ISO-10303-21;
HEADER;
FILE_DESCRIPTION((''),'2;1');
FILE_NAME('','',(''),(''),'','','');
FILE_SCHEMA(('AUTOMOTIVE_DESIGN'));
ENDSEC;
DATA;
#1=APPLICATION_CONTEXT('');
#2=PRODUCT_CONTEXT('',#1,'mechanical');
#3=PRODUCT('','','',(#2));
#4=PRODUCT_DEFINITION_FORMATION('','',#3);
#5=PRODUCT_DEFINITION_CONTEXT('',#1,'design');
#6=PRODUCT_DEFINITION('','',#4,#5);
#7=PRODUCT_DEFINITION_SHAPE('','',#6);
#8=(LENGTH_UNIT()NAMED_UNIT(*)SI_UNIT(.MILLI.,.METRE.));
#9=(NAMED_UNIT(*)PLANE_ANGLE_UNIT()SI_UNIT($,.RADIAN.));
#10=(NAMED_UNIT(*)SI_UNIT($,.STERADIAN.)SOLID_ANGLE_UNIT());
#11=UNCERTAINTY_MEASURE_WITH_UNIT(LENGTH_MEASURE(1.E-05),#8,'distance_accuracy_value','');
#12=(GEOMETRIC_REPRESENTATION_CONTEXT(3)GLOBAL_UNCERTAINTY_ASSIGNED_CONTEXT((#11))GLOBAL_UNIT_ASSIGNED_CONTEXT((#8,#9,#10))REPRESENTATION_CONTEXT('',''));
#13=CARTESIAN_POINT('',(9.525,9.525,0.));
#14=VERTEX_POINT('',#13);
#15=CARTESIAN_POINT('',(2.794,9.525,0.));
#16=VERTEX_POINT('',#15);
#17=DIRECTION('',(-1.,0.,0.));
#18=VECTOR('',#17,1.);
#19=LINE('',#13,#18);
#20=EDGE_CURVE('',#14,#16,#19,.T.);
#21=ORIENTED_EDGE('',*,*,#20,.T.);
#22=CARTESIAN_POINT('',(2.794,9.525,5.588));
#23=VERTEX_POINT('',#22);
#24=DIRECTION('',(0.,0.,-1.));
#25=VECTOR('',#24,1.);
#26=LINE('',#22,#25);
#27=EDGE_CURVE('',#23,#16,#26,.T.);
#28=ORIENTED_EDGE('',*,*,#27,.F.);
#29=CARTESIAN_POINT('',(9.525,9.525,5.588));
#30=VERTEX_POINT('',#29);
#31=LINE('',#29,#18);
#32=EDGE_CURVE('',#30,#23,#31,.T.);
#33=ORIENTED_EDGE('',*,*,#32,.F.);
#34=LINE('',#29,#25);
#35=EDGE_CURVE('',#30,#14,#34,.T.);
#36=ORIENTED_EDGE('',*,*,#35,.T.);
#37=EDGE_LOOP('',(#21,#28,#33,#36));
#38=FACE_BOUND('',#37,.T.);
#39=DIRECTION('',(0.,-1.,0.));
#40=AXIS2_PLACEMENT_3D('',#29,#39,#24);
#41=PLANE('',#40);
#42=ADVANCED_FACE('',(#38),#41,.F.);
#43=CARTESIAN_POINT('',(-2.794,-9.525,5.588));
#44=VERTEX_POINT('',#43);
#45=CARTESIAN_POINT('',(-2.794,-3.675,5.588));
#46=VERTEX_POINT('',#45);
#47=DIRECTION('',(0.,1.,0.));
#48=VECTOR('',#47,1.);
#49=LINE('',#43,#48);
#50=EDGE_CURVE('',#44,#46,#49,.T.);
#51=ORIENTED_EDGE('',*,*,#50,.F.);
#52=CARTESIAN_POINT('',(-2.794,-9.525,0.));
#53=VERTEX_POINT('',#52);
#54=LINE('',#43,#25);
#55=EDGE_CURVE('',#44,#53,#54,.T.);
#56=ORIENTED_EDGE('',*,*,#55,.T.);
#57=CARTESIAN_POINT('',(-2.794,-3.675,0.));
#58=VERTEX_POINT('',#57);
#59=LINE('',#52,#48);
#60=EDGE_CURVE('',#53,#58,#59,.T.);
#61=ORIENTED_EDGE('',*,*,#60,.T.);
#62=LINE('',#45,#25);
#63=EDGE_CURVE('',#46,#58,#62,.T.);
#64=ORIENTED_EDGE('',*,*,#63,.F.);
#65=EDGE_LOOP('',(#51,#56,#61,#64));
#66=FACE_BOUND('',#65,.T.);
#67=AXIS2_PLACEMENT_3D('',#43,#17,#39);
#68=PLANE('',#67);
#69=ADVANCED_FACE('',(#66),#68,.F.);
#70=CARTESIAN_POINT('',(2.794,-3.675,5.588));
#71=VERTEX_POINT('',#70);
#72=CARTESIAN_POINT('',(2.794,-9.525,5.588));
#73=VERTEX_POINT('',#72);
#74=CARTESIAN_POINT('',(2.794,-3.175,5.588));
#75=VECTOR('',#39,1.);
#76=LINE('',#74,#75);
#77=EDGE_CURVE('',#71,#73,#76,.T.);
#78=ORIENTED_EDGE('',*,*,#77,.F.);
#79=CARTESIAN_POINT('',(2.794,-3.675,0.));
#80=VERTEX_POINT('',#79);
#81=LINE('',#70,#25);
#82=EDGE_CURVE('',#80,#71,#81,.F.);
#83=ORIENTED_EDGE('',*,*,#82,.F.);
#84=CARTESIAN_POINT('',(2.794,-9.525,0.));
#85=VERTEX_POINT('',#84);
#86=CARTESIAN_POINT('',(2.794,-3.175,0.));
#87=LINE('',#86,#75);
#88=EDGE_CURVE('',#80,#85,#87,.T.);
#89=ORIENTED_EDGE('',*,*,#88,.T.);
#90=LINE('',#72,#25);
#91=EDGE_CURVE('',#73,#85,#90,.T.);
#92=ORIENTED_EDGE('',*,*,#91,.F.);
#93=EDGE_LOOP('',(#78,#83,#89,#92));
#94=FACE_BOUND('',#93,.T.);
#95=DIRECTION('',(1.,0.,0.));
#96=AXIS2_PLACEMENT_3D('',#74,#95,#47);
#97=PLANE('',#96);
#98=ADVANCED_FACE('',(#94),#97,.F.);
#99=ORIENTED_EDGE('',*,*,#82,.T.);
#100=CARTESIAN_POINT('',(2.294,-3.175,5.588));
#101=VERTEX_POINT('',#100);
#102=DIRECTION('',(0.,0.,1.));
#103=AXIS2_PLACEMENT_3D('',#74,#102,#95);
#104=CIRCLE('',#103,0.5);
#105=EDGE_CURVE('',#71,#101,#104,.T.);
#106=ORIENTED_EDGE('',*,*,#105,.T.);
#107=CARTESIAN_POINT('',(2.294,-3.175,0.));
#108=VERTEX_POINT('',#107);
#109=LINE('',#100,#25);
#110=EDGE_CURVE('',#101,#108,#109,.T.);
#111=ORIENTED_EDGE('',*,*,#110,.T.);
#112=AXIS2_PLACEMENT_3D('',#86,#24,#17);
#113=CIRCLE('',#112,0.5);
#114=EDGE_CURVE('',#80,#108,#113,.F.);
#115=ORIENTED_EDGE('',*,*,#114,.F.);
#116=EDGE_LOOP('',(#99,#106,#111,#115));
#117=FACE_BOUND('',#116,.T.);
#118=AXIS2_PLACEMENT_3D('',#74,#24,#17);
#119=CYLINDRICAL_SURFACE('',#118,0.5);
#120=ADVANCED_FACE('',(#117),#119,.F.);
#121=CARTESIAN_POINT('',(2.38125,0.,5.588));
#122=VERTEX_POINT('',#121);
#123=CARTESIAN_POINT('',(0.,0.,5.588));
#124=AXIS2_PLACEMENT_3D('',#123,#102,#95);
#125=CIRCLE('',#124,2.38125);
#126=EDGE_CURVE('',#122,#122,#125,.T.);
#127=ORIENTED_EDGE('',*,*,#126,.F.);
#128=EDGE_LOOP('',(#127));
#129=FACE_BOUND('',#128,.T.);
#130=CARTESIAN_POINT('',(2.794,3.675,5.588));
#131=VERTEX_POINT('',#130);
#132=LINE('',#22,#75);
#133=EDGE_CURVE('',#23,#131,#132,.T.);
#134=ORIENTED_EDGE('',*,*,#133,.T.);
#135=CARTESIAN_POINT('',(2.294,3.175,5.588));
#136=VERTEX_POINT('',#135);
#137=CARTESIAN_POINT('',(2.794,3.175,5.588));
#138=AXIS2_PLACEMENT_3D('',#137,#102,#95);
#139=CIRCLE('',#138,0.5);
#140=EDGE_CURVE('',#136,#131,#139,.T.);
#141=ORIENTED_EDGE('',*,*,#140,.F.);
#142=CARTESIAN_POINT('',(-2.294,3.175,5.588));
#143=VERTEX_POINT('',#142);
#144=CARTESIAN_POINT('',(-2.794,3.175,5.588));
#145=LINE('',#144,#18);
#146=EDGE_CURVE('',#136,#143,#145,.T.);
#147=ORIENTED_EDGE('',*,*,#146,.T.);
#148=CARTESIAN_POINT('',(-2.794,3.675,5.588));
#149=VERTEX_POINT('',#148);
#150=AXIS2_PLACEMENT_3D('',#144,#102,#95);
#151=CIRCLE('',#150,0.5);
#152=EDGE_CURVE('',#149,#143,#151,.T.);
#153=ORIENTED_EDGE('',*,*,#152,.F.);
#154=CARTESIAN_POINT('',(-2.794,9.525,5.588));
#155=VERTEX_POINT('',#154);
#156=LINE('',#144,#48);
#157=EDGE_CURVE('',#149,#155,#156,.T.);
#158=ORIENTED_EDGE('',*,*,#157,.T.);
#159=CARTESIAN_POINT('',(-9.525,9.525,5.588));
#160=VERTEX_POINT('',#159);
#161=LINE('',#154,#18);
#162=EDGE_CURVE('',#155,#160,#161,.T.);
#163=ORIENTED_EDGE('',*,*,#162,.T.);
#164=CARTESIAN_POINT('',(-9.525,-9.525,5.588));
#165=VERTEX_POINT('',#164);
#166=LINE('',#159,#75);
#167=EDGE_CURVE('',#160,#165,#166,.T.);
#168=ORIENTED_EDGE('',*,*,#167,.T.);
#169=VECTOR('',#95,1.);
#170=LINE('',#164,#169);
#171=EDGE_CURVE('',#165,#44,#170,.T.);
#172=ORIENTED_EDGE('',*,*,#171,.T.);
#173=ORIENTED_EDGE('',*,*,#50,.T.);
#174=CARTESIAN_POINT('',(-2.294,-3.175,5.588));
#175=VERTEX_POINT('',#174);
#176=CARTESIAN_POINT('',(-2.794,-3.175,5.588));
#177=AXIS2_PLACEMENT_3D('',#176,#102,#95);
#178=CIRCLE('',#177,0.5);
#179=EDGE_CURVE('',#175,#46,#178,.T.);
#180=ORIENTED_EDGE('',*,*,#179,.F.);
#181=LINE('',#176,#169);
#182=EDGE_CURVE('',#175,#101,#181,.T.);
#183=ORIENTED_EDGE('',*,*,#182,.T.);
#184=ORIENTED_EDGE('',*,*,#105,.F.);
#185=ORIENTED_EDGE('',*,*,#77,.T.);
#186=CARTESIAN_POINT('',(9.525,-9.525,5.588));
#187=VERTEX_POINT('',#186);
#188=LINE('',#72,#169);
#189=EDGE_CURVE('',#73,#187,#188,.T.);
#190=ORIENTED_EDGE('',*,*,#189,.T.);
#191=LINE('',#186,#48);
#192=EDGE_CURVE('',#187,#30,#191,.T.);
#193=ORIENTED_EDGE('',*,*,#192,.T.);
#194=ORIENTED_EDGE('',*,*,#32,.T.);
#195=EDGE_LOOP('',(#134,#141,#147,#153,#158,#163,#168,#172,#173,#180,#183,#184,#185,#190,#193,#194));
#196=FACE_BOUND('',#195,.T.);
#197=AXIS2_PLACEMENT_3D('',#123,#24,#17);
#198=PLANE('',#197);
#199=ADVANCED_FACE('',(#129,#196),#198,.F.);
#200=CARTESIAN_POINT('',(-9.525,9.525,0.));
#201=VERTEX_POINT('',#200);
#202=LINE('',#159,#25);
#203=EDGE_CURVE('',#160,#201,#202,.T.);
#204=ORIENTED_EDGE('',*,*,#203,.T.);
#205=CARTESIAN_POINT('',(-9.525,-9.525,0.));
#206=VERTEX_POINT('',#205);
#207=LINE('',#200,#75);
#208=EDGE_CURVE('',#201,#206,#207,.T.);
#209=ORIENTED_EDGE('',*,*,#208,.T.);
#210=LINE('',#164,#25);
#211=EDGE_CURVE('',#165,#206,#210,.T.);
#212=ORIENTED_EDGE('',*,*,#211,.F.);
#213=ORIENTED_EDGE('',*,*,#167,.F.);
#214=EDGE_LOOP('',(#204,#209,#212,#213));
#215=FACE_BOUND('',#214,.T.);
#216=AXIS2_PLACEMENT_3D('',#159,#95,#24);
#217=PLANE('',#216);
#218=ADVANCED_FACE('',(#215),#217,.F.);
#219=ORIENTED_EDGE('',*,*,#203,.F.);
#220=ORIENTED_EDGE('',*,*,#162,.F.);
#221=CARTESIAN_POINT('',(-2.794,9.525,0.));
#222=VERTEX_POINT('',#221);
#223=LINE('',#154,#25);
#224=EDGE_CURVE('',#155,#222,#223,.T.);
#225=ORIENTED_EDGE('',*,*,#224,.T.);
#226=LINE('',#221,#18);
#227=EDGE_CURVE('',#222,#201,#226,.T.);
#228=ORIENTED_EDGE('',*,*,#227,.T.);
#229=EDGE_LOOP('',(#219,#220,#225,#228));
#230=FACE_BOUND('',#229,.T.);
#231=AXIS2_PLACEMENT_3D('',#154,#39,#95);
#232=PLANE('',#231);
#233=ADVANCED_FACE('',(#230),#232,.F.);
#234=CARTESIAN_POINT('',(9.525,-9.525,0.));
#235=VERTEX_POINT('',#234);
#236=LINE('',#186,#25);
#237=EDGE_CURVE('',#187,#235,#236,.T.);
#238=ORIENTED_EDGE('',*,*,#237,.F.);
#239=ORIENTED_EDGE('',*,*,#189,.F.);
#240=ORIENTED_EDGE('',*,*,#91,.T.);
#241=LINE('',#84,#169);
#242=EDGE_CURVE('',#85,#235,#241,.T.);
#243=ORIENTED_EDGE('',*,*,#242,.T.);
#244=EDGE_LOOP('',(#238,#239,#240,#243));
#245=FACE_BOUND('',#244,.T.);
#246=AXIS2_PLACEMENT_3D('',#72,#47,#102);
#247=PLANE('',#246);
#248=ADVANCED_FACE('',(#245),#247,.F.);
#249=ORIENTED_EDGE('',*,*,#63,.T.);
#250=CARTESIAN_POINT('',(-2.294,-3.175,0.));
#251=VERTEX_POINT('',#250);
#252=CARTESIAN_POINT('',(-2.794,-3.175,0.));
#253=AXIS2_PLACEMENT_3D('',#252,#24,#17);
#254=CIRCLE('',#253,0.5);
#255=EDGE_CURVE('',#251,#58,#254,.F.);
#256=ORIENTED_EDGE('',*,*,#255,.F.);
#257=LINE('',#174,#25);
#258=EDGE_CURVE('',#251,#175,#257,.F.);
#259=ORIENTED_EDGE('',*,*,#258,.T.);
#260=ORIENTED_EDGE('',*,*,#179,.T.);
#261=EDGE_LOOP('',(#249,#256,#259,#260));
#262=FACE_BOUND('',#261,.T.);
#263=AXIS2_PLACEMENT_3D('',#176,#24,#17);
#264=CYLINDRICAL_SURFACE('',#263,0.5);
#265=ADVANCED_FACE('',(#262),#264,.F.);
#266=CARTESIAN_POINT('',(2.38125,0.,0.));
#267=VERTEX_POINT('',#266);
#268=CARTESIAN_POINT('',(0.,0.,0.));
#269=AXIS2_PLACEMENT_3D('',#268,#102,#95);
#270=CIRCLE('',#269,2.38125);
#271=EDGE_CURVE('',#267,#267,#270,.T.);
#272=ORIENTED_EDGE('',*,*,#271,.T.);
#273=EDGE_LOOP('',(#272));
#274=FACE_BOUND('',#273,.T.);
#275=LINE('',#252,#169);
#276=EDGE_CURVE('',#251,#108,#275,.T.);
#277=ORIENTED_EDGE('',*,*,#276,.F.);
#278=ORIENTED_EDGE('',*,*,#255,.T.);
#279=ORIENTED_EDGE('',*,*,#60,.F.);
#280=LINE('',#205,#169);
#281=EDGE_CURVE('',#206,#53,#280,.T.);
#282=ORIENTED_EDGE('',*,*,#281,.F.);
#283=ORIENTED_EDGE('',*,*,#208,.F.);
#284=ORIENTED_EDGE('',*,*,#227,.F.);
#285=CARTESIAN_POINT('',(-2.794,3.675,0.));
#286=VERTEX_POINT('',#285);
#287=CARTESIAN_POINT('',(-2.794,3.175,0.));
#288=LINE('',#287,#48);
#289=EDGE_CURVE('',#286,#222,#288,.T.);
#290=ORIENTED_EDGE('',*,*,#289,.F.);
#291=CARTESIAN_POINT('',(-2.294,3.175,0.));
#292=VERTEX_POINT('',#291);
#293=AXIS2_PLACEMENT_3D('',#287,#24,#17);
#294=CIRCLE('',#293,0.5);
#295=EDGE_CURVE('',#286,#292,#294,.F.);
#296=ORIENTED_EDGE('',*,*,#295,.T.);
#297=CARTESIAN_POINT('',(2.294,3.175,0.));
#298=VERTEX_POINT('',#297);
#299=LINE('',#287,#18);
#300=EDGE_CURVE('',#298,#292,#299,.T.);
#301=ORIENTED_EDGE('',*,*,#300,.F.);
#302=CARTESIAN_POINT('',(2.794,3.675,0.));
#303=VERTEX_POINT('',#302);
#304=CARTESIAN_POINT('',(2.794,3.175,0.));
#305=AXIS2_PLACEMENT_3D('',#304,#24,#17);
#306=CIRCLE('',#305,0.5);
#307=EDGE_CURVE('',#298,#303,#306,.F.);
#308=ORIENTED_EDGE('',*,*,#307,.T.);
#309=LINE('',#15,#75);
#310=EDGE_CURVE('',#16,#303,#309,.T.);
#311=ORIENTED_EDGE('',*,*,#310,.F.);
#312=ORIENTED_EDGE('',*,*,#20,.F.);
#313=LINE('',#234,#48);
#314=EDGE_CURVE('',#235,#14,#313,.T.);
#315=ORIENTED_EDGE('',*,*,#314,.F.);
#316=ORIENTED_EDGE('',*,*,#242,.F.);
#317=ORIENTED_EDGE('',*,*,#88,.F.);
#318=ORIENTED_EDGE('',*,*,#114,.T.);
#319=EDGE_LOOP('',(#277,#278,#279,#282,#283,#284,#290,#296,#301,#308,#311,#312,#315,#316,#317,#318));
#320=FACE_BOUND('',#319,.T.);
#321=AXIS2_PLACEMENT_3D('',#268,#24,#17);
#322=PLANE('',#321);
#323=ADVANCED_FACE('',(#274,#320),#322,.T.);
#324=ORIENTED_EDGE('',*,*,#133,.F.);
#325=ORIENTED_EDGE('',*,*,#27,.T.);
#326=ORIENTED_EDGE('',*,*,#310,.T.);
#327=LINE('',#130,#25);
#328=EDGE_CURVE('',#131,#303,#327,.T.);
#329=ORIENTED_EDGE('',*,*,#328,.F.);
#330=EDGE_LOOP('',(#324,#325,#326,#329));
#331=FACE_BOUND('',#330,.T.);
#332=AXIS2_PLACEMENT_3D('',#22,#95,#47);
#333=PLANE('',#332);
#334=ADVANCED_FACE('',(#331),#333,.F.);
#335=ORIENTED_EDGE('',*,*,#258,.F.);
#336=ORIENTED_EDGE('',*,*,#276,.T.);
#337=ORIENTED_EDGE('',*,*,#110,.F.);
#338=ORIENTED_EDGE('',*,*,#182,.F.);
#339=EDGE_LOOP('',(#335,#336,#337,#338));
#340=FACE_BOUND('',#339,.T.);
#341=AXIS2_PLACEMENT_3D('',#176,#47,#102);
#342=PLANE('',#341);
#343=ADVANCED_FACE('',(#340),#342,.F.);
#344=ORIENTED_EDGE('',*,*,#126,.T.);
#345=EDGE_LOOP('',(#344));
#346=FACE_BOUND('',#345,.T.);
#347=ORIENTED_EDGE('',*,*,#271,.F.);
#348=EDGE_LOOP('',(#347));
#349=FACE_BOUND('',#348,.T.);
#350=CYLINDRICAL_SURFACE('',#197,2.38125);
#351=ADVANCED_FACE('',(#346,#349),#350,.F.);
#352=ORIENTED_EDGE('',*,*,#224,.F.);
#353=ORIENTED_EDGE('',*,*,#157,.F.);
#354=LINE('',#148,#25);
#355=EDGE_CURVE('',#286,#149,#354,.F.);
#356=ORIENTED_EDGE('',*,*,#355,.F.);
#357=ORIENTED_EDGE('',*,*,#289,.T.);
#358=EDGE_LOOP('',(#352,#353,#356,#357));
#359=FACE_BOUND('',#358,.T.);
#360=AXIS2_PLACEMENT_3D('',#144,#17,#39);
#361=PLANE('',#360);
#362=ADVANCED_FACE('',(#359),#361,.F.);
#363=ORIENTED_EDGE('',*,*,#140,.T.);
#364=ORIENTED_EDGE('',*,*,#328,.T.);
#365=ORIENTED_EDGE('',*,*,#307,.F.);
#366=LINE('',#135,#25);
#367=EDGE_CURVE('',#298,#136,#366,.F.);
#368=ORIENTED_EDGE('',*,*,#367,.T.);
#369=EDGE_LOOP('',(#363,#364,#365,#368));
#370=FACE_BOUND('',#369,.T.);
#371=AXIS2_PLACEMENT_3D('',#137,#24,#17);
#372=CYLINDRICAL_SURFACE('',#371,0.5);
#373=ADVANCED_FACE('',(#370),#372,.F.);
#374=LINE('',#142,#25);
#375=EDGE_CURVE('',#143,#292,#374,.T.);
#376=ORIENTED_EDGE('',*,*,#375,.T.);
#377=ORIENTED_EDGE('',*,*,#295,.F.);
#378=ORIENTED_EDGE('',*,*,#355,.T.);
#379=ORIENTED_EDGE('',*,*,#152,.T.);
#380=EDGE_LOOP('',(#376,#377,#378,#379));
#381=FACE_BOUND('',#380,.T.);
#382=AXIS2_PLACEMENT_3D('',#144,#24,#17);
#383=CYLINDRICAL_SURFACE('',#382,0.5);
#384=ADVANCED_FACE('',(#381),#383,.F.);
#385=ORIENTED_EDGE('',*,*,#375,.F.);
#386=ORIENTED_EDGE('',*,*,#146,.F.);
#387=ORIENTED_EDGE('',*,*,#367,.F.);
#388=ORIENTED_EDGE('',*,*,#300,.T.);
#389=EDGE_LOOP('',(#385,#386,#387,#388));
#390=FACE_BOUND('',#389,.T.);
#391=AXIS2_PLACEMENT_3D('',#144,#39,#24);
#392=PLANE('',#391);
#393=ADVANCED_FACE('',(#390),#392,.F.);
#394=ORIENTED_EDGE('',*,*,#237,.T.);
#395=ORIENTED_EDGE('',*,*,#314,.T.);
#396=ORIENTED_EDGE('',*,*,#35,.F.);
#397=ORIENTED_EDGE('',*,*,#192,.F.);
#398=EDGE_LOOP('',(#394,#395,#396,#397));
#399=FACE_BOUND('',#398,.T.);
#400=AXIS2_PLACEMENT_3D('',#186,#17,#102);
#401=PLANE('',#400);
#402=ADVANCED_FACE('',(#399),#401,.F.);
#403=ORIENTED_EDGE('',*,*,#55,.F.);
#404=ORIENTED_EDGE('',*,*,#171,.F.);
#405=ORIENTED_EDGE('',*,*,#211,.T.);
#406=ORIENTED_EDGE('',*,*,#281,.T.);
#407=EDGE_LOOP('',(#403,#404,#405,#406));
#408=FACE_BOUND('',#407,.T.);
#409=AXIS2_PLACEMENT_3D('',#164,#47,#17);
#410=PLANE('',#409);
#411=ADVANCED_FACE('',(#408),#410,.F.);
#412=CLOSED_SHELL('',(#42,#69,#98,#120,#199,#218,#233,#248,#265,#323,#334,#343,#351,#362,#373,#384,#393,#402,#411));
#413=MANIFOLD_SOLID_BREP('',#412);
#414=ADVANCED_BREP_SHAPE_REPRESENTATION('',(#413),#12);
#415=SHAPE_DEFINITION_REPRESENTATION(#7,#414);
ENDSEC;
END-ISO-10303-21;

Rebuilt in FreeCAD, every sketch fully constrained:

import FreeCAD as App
import Part
import Sketcher

V = App.Vector
Q = App.Units.Quantity

doc = App.newDocument("Part")
body = doc.addObject("PartDesign::Body", "Body")

# Sketch on XY plane
sketch1 = body.newObject("Sketcher::SketchObject", "Sketch")
sketch1.AttachmentSupport = (doc.getObject("XY_Plane"), [""])
sketch1.MapMode = "FlatFace"
sketch1.addGeometry(Part.LineSegment(V(-2.794, 3.175, 0), V(-2.794, 9.525, 0)), False)
sketch1.addGeometry(Part.LineSegment(V(-2.794, 9.525, 0), V(-9.525, 9.525, 0)), False)
sketch1.addGeometry(Part.LineSegment(V(-9.525, 9.525, 0), V(-9.525, -9.525, 0)), False)
sketch1.addGeometry(Part.LineSegment(V(-9.525, -9.525, 0), V(-2.794, -9.525, 0)), False)
sketch1.addGeometry(Part.LineSegment(V(-2.794, -9.525, 0), V(-2.794, -3.175, 0)), False)
sketch1.addGeometry(Part.LineSegment(V(-2.794, -3.175, 0), V(2.794, -3.175, 0)), False)
sketch1.addGeometry(Part.LineSegment(V(2.794, -3.175, 0), V(2.794, -9.525, 0)), False)
sketch1.addGeometry(Part.LineSegment(V(2.794, -9.525, 0), V(9.525, -9.525, 0)), False)
sketch1.addGeometry(Part.LineSegment(V(9.525, -9.525, 0), V(9.525, 9.525, 0)), False)
sketch1.addGeometry(Part.LineSegment(V(9.525, 9.525, 0), V(2.794, 9.525, 0)), False)
sketch1.addGeometry(Part.LineSegment(V(2.794, 9.525, 0), V(2.794, 3.175, 0)), False)
sketch1.addGeometry(Part.LineSegment(V(2.794, 3.175, 0), V(-2.794, 3.175, 0)), False)
sketch1.addGeometry(Part.Circle(V(0, 0, 0), V(0, 0, 1), 2.38125), False)
sketch1.addConstraint(Sketcher.Constraint("Coincident", 0, 2, 1, 1))
sketch1.addConstraint(Sketcher.Constraint("Coincident", 1, 2, 2, 1))
sketch1.addConstraint(Sketcher.Constraint("Coincident", 2, 2, 3, 1))
sketch1.addConstraint(Sketcher.Constraint("Coincident", 3, 2, 4, 1))
sketch1.addConstraint(Sketcher.Constraint("Coincident", 4, 2, 5, 1))
sketch1.addConstraint(Sketcher.Constraint("Coincident", 5, 2, 6, 1))
sketch1.addConstraint(Sketcher.Constraint("Coincident", 6, 2, 7, 1))
sketch1.addConstraint(Sketcher.Constraint("Coincident", 7, 2, 8, 1))
sketch1.addConstraint(Sketcher.Constraint("Coincident", 8, 2, 9, 1))
sketch1.addConstraint(Sketcher.Constraint("Coincident", 9, 2, 10, 1))
sketch1.addConstraint(Sketcher.Constraint("Coincident", 10, 2, 11, 1))
sketch1.addConstraint(Sketcher.Constraint("Coincident", 11, 2, 0, 1))
sketch1.addConstraint(Sketcher.Constraint("Vertical", 0))
sketch1.addConstraint(Sketcher.Constraint("Horizontal", 1))
sketch1.addConstraint(Sketcher.Constraint("Vertical", 2))
sketch1.addConstraint(Sketcher.Constraint("Horizontal", 3))
sketch1.addConstraint(Sketcher.Constraint("Vertical", 4))
sketch1.addConstraint(Sketcher.Constraint("Horizontal", 5))
sketch1.addConstraint(Sketcher.Constraint("Vertical", 6))
sketch1.addConstraint(Sketcher.Constraint("Horizontal", 7))
sketch1.addConstraint(Sketcher.Constraint("Vertical", 8))
sketch1.addConstraint(Sketcher.Constraint("Horizontal", 9))
sketch1.addConstraint(Sketcher.Constraint("Vertical", 10))
sketch1.addConstraint(Sketcher.Constraint("Horizontal", 11))
sketch1.addConstraint(Sketcher.Constraint("Coincident", 12, 3, -1, 1))
sketch1.addConstraint(Sketcher.Constraint("Symmetric", 0, 2, 6, 2, -1, 1))
sketch1.addConstraint(Sketcher.Constraint("Symmetric", 2, 2, 8, 2, -1, 1))
sketch1.addConstraint(Sketcher.Constraint("Symmetric", 4, 2, 10, 2, -1, 1))
sketch1.addConstraint(Sketcher.Constraint("Symmetric", 3, 2, 6, 2, -2))
sketch1.addConstraint(Sketcher.Constraint("Diameter", 12, Q("0.1875 in")))
sketch1.addConstraint(Sketcher.Constraint("DistanceX", 5, 1, 5, 2, Q("0.22 in")))
sketch1.addConstraint(Sketcher.Constraint("DistanceY", 0, 1, 0, 2, Q("0.25 in")))
sketch1.addConstraint(Sketcher.Constraint("DistanceY", 2, 2, 2, 1, Q("0.75 in")))
sketch1.addConstraint(Sketcher.Constraint("DistanceX", 1, 2, 1, 1, Q("0.265 in")))
pad1 = body.newObject("PartDesign::Pad", "Pad")
pad1.Profile = sketch1
pad1.Length = Q("0.22 in")

# Sketch on XY plane
sketch2 = body.newObject("Sketcher::SketchObject", "Sketch001")
sketch2.AttachmentSupport = (doc.getObject("XY_Plane"), [""])
sketch2.MapMode = "FlatFace"
sketch2.addGeometry(Part.Circle(V(-2.794, 3.175, 0), V(0, 0, 1), 0.5), False)
sketch2.addGeometry(Part.Circle(V(2.794, 3.175, 0), V(0, 0, 1), 0.5), False)
sketch2.addGeometry(Part.Circle(V(2.794, -3.175, 0), V(0, 0, 1), 0.5), False)
sketch2.addGeometry(Part.Circle(V(-2.794, -3.175, 0), V(0, 0, 1), 0.5), False)
sketch2.addConstraint(Sketcher.Constraint("Equal", 0, 1))
sketch2.addConstraint(Sketcher.Constraint("Equal", 1, 2))
sketch2.addConstraint(Sketcher.Constraint("Equal", 2, 3))
sketch2.addConstraint(Sketcher.Constraint("Symmetric", 0, 3, 2, 3, -1, 1))
sketch2.addConstraint(Sketcher.Constraint("Symmetric", 1, 3, 3, 3, -1, 1))
sketch2.addConstraint(Sketcher.Constraint("Symmetric", 0, 3, 1, 3, -2))
sketch2.addConstraint(Sketcher.Constraint("Diameter", 0, Q("1 mm")))
sketch2.addConstraint(Sketcher.Constraint("DistanceX", 0, 3, -1, 1, Q("0.11 in")))
sketch2.addConstraint(Sketcher.Constraint("DistanceY", 2, 3, 1, 3, Q("0.25 in")))
pocket1 = body.newObject("PartDesign::Pocket", "Pocket")
pocket1.Profile = sketch2
pocket1.Type = "ThroughAll"
pocket1.Midplane = True

doc.recompute()
